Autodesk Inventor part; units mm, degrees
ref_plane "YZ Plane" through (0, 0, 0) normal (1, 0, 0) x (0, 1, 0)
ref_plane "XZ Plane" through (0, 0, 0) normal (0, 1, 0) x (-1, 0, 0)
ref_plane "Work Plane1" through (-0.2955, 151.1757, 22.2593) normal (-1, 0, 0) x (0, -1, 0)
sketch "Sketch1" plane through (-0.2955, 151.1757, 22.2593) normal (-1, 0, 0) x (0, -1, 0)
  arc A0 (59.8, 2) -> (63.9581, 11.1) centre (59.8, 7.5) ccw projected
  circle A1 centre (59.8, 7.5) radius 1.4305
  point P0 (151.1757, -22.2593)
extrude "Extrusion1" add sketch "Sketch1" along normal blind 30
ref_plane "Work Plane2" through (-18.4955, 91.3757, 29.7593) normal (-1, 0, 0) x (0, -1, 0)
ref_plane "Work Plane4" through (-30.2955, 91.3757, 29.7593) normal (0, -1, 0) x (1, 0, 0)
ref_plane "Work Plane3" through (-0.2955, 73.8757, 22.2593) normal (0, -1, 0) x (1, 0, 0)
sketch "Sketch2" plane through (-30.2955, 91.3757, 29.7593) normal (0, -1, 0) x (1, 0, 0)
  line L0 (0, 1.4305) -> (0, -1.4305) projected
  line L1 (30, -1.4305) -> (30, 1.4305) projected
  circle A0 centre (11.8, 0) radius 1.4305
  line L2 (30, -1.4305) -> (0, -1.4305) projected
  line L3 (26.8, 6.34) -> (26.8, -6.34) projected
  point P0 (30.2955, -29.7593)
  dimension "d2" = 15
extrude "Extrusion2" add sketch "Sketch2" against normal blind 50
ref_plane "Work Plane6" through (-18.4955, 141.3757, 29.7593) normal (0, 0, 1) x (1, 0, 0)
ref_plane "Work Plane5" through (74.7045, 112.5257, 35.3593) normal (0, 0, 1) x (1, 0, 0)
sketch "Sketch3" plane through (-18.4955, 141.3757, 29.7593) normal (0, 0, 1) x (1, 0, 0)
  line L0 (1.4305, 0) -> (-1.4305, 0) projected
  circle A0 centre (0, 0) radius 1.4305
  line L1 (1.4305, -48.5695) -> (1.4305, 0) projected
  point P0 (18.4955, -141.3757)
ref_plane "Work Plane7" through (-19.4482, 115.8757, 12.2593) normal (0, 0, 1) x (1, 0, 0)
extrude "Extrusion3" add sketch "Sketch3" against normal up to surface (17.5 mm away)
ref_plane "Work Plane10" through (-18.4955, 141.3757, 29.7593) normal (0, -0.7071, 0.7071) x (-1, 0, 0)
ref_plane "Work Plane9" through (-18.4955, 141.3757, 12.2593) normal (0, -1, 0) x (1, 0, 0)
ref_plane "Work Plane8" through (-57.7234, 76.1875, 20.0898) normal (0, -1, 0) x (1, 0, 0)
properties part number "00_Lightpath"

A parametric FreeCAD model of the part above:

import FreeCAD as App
import Part
import Sketcher

V = App.Vector

doc = App.newDocument("Part")
body = doc.addObject("PartDesign::Body", "Body")

# Sketch on YZ plane
sketch1 = body.newObject("Sketcher::SketchObject", "Sketch")
sketch1.AttachmentSupport = (doc.getObject("YZ_Plane"), [""])
sketch1.MapMode = "FlatFace"
sketch1.AttachmentOffset = App.Placement(V(0, 0, -0.2955), App.Rotation())
sketch1.addGeometry(Part.Circle(V(91.4, 29.8, 0), V(0, 0, 1), 1.4), False)
sketch1.addConstraint([
    Sketcher.Constraint("Diameter", 0, 2.861),
    Sketcher.Constraint("DistanceX", -1, 1, 0, 3, 91.3757),
    Sketcher.Constraint("DistanceY", -1, 1, 0, 3, 29.7593),
])
pad1 = body.newObject("PartDesign::Pad", "Pad")
pad1.Profile = sketch1
pad1.Length = 30
pad1.Reversed = True

# Sketch on XZ plane
sketch2 = body.newObject("Sketcher::SketchObject", "Sketch001")
sketch2.AttachmentSupport = (doc.getObject("XZ_Plane"), [""])
sketch2.MapMode = "FlatFace"
sketch2.AttachmentOffset = App.Placement(V(0, 0, -91.3757), App.Rotation())
sketch2.addGeometry(Part.Circle(V(-18.5, 29.8, 0), V(0, 0, 1), 1.4), False)
sketch2.addConstraint([
    Sketcher.Constraint("Diameter", 0, 2.861),
    Sketcher.Constraint("DistanceX", 0, 3, -1, 1, 18.4955),
    Sketcher.Constraint("DistanceY", -1, 1, 0, 3, 29.7593),
])
pad2 = body.newObject("PartDesign::Pad", "Pad001")
pad2.Profile = sketch2
pad2.Length = 50
pad2.Reversed = True

# Sketch on XY plane
sketch3 = body.newObject("Sketcher::SketchObject", "Sketch002")
sketch3.AttachmentSupport = (doc.getObject("XY_Plane"), [""])
sketch3.MapMode = "FlatFace"
sketch3.AttachmentOffset = App.Placement(V(0, 0, 29.7593), App.Rotation())
sketch3.addGeometry(Part.Circle(V(-18.5, 141.4, 0), V(0, 0, 1), 1.4), False)
sketch3.addConstraint([
    Sketcher.Constraint("Diameter", 0, 2.861),
    Sketcher.Constraint("DistanceX", 0, 3, -1, 1, 18.4955),
    Sketcher.Constraint("DistanceY", -1, 1, 0, 3, 141.3757),
])
pad3 = body.newObject("PartDesign::Pad", "Pad002")
pad3.Profile = sketch3
pad3.Length = 17.5
pad3.Reversed = True

doc.recompute()
